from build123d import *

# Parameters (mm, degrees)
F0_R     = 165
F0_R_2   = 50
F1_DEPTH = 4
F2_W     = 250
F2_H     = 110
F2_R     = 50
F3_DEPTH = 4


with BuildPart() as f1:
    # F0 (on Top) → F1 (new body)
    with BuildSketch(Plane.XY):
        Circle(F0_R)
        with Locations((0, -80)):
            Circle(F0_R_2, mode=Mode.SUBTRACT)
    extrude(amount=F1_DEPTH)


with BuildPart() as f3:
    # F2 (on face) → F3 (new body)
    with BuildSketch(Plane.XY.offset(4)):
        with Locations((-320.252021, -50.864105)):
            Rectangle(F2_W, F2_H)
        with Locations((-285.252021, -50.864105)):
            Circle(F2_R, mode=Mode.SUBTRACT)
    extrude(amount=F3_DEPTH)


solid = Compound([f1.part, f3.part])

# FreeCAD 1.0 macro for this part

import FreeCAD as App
import Part
import Sketcher

V = App.Vector


def add_polygon(sketch, points):
    """Adds a closed chain of lines whose ends are joined by coincident constraints."""
    first, n = sketch.GeometryCount, len(points)
    for a, b in zip(points, points[1:] + points[:1]):
        sketch.addGeometry(Part.LineSegment(App.Vector(*a, 0), App.Vector(*b, 0)), False)
    for i in range(n):
        sketch.addConstraint(Sketcher.Constraint("Coincident", first + i, 2, first + (i + 1) % n, 1))

doc = App.newDocument("Part")
params = doc.addObject("Spreadsheet::Sheet", "Params")
for row, (alias, value) in enumerate([
    ("sketch1_diameter", "330 mm"),
    ("sketch1_diameter2", "100 mm"),
    ("pad1_length", "4 mm"),
    ("sketch2_diameter", "100 mm"),
    ("sketch2_width", "250 mm"),
    ("sketch2_height", "110 mm"),
    ("pad2_length", "4 mm"),
], start=1):
    params.set(f"A{row}", alias)
    params.set(f"B{row}", "=" + value)
    params.setAlias(f"B{row}", alias)

body = doc.addObject("PartDesign::Body", "Body")

# Sketch on XY plane
sketch1 = body.newObject("Sketcher::SketchObject", "Sketch")
sketch1.AttachmentSupport = (doc.getObject("XY_Plane"), [""])
sketch1.MapMode = "FlatFace"
sketch1.addGeometry([
    Part.Circle(V(0, 0, 0), V(0, 0, 1), 165),
    Part.Circle(V(0, -80, 0), V(0, 0, 1), 50),
], False)
sketch1.addConstraint([
    Sketcher.Constraint("Coincident", 0, 3, -1, 1),
    Sketcher.Constraint("PointOnObject", 1, 3, -2),
    Sketcher.Constraint("Diameter", 0, 330.0),
    Sketcher.Constraint("Diameter", 1, 100.0),
    Sketcher.Constraint("DistanceY", 1, 3, -1, 1, 80.0),
])
sketch1.setExpression("Constraints[2]", "Params.sketch1_diameter")
sketch1.setExpression("Constraints[3]", "Params.sketch1_diameter2")
pad1 = body.newObject("PartDesign::Pad", "Pad")
pad1.Profile = sketch1
pad1.setExpression("Length", "Params.pad1_length")
body2 = doc.addObject("PartDesign::Body", "Body001")

# Sketch on XY plane
sketch2 = body2.newObject("Sketcher::SketchObject", "Sketch001")
sketch2.AttachmentSupport = (doc.getObject("XY_Plane001"), [""])
sketch2.MapMode = "FlatFace"
sketch2.AttachmentOffset = App.Placement(V(0, 0, 4), App.Rotation())
add_polygon(sketch2, [(-445, 4), (-445, -106), (-195, -106), (-195, 4)])  # lines 0-3
sketch2.addGeometry(Part.Circle(V(-285, -51, 0), V(0, 0, 1), 50), False)  # 4
sketch2.addConstraint([
    Sketcher.Constraint("Vertical", 0),
    Sketcher.Constraint("Horizontal", 1),
    Sketcher.Constraint("Vertical", 2),
    Sketcher.Constraint("Horizontal", 3),
    Sketcher.Constraint("Diameter", 4, 100.0),
    Sketcher.Constraint("DistanceX", 1, 1, 1, 2, 250.0),
    Sketcher.Constraint("DistanceY", 0, 2, 0, 1, 110.0),
    Sketcher.Constraint("DistanceX", 0, 2, 4, 3, 160.0),
    Sketcher.Constraint("DistanceY", 0, 2, 4, 3, 55.0),
    Sketcher.Constraint("DistanceX", 4, 3, -1, 1, 285.252021),
    Sketcher.Constraint("DistanceY", 4, 3, -1, 1, 50.864105),
])
sketch2.setExpression("Constraints[8]", "Params.sketch2_diameter")
sketch2.setExpression("Constraints[9]", "Params.sketch2_width")
sketch2.setExpression("Constraints[10]", "Params.sketch2_height")
pad2 = body2.newObject("PartDesign::Pad", "Pad001")
pad2.Profile = sketch2
pad2.setExpression("Length", "Params.pad2_length")

doc.recompute()
